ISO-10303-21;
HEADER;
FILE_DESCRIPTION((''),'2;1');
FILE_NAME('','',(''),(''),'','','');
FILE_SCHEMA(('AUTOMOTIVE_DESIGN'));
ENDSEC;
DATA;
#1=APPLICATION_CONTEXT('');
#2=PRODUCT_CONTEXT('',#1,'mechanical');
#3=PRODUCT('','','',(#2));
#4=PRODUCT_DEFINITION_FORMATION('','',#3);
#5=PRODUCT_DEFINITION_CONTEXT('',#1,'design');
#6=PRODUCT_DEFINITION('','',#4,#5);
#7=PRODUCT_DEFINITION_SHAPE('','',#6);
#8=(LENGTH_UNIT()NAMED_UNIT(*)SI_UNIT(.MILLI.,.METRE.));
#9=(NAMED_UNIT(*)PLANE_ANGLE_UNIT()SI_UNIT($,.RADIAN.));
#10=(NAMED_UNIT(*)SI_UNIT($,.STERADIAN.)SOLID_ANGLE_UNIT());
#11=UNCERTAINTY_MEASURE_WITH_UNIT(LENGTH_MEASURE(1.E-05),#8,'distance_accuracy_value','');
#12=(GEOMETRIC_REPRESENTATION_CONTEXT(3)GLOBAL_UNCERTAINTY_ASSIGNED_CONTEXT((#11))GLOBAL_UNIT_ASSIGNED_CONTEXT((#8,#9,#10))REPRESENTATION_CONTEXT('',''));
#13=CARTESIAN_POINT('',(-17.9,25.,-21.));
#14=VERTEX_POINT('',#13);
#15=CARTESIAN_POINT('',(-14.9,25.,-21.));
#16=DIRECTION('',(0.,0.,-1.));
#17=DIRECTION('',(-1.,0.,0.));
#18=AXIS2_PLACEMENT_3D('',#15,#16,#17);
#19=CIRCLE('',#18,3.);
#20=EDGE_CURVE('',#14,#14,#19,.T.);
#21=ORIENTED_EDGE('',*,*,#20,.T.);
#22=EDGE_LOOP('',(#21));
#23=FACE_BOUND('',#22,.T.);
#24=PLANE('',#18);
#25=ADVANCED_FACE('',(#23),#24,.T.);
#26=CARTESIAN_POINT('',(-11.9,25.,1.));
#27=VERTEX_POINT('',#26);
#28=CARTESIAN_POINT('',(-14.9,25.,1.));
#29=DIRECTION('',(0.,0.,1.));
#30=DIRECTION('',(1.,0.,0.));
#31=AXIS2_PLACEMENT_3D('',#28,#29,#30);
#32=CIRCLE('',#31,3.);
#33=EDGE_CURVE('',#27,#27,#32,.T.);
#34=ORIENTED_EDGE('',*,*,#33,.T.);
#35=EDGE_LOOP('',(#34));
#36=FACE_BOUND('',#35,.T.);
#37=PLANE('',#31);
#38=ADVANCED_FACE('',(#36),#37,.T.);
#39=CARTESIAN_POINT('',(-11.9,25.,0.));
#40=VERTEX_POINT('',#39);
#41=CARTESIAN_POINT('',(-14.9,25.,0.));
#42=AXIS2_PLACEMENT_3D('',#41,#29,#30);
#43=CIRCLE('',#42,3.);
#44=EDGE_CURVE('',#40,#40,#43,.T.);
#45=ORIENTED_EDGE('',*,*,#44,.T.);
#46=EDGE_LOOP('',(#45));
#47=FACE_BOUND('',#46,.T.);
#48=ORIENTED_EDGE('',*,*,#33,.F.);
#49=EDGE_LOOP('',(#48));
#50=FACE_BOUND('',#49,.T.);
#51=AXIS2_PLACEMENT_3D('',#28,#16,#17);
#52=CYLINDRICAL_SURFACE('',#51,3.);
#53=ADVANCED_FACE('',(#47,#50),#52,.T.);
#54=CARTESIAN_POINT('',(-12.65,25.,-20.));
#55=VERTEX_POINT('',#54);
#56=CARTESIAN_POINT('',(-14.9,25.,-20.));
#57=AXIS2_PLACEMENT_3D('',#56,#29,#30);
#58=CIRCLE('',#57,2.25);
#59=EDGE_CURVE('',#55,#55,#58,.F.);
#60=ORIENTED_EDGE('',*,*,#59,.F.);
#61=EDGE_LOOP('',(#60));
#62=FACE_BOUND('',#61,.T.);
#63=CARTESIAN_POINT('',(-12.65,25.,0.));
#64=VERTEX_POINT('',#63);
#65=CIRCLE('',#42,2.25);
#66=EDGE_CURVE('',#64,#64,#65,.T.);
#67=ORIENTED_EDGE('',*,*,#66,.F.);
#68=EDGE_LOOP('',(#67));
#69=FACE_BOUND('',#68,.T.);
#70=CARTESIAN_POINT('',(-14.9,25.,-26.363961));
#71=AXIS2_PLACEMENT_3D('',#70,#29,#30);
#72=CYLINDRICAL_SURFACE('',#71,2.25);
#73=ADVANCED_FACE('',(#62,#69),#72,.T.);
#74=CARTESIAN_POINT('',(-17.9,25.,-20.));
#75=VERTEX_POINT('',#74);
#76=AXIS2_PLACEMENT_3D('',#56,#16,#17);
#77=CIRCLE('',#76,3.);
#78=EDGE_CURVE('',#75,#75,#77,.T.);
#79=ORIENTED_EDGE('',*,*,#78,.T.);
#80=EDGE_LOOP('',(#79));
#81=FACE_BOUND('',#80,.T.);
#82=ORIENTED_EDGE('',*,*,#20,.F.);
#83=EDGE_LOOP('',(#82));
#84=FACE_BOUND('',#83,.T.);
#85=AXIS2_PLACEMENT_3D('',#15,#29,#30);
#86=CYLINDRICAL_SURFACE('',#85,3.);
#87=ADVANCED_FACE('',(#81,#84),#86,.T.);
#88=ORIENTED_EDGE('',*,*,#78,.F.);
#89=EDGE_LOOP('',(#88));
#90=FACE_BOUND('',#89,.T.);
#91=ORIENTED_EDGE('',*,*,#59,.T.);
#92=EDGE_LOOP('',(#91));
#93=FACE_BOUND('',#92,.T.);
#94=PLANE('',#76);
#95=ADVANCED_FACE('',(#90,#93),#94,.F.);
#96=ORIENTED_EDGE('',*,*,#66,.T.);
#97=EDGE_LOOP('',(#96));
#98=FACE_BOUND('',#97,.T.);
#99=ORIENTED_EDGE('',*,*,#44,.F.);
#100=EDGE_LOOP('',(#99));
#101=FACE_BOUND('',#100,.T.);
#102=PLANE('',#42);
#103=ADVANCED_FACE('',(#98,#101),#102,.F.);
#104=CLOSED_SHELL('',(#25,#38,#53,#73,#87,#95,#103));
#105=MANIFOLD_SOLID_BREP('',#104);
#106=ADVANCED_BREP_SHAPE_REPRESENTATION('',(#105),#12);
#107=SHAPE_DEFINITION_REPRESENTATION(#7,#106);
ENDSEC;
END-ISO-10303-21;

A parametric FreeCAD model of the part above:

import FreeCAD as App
import Part
import Sketcher

V = App.Vector

doc = App.newDocument("Part")
body = doc.addObject("PartDesign::Body", "Body")

# Sketch on XY plane
sketch1 = doc.addObject("Sketcher::SketchObject", "Sketch")
body.addObject(sketch1)
sketch1.AttachmentSupport = (doc.XY_Plane, [""])
sketch1.MapMode = "FlatFace"
sketch1.addGeometry(Part.Circle(V(-14.9, 25, 0), V(0, 0, 1), 2.2), False)
sketch1.addConstraint([
    Sketcher.Constraint("Diameter", 0, 4.5),
    Sketcher.Constraint("DistanceY", -1, 1, 0, 3, 25.0),
    Sketcher.Constraint("DistanceX", 0, 3, -1, 1, 14.9),
])
pad1 = doc.addObject("PartDesign::Pad", "Pad")
body.addObject(pad1)
pad1.Profile = sketch1
pad1.Length = 20
pad1.Reversed = True

# Sketch on XY plane
sketch2 = doc.addObject("Sketcher::SketchObject", "Sketch001")
body.addObject(sketch2)
sketch2.AttachmentSupport = (doc.XY_Plane, [""])
sketch2.MapMode = "FlatFace"
sketch2.addGeometry(Part.Circle(V(-14.9, 25, 0), V(0, 0, 1), 3), False)
sketch2.addConstraint([
    Sketcher.Constraint("Diameter", 0, 6.0),
    Sketcher.Constraint("DistanceY", -1, 1, 0, 3, 25.0),
    Sketcher.Constraint("DistanceX", 0, 3, -1, 1, 14.9),
])
pad2 = doc.addObject("PartDesign::Pad", "Pad001")
body.addObject(pad2)
pad2.Profile = sketch2
pad2.Length = 1

# Sketch on XY plane
sketch3 = doc.addObject("Sketcher::SketchObject", "Sketch002")
body.addObject(sketch3)
sketch3.AttachmentSupport = (doc.XY_Plane, [""])
sketch3.MapMode = "FlatFace"
sketch3.AttachmentOffset = App.Placement(V(0, 0, -21), App.Rotation())
sketch3.addGeometry(Part.Circle(V(-14.9, 25, 0), V(0, 0, 1), 3), False)
sketch3.addConstraint([
    Sketcher.Constraint("Diameter", 0, 6.0),
    Sketcher.Constraint("DistanceY", -1, 1, 0, 3, 25.0),
    Sketcher.Constraint("DistanceX", 0, 3, -1, 1, 14.9),
])
pad3 = doc.addObject("PartDesign::Pad", "Pad002")
body.addObject(pad3)
pad3.Profile = sketch3
pad3.Length = 1

doc.recompute()
